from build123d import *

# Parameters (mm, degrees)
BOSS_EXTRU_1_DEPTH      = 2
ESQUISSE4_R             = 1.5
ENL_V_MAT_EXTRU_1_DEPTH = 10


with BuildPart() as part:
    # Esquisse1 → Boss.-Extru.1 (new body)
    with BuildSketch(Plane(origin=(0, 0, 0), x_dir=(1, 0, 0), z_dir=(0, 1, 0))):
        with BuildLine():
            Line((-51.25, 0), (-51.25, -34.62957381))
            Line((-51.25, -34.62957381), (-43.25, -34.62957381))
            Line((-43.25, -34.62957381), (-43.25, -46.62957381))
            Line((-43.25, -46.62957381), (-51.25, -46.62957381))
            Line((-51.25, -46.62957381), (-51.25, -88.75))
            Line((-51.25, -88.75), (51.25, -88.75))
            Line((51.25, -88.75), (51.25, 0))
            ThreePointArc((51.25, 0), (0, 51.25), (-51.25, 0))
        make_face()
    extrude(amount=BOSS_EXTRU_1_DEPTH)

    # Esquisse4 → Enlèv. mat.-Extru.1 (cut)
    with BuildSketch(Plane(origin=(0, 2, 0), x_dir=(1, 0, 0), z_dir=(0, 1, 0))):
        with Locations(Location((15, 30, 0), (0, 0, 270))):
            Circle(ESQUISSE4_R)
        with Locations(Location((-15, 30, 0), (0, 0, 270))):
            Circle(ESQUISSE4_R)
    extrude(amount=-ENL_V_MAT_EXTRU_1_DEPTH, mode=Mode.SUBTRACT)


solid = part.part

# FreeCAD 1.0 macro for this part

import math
import FreeCAD as App
import Part
import Sketcher
Q = App.Units.Quantity

doc = App.newDocument("Part")
body = doc.addObject("PartDesign::Body", "Body")

# Sketch on XZ plane
sketch1 = body.newObject("Sketcher::SketchObject", "Sketch")
sketch1.AttachmentSupport = (doc.getObject("XZ_Plane"), [""])
sketch1.MapMode = "FlatFace"
sketch1.addGeometry([
    Part.LineSegment(App.Vector(-51, 0, 0), App.Vector(-51, 35, 0)),  # 0
    Part.LineSegment(App.Vector(-51, 35, 0), App.Vector(-43, 35, 0)),  # 1
    Part.LineSegment(App.Vector(-43, 35, 0), App.Vector(-43, 47, 0)),  # 2
    Part.LineSegment(App.Vector(-43, 47, 0), App.Vector(-51, 47, 0)),  # 3
    Part.LineSegment(App.Vector(-51, 47, 0), App.Vector(-51, 89, 0)),  # 4
    Part.LineSegment(App.Vector(-51, 89, 0), App.Vector(51, 89, 0)),  # 5
    Part.LineSegment(App.Vector(51, 89, 0), App.Vector(51, 0, 0)),  # 6
    Part.ArcOfCircle(Part.Circle(App.Vector(0, 0, 0), App.Vector(0, 0, 1), 51), math.radians(180), math.radians(360)),  # 7
], False)
sketch1.addConstraint([
    Sketcher.Constraint("Coincident", 0, 2, 1, 1),
    Sketcher.Constraint("Coincident", 1, 2, 2, 1),
    Sketcher.Constraint("Coincident", 2, 2, 3, 1),
    Sketcher.Constraint("Coincident", 3, 2, 4, 1),
    Sketcher.Constraint("Coincident", 4, 2, 5, 1),
    Sketcher.Constraint("Coincident", 5, 2, 6, 1),
    Sketcher.Constraint("Tangent", 6, 2, 7, 2),
    Sketcher.Constraint("Tangent", 7, 1, 0, 1),
    Sketcher.Constraint("Vertical", 0),
    Sketcher.Constraint("Horizontal", 1),
    Sketcher.Constraint("Vertical", 2),
    Sketcher.Constraint("Horizontal", 3),
    Sketcher.Constraint("Vertical", 4),
    Sketcher.Constraint("Horizontal", 5),
    Sketcher.Constraint("Vertical", 6),
    Sketcher.Constraint("Coincident", 7, 3, -1, 1),
    Sketcher.Constraint("Vertical", 0, 2, 3, 2),
    Sketcher.Constraint("DistanceX", 1, 1, 1, 2, Q("8 mm")),
    Sketcher.Constraint("DistanceY", 2, 1, 2, 2, Q("12 mm")),
    Sketcher.Constraint("Radius", 7, Q("51.25 mm")),
    Sketcher.Constraint("DistanceY", 6, 2, 6, 1, Q("88.75 mm")),
    Sketcher.Constraint("DistanceY", 0, 1, 0, 2, Q("34.629574 mm")),
])
pad1 = body.newObject("PartDesign::Pad", "Pad")
pad1.Profile = sketch1
pad1.Length = 2
pad1.Reversed = True

# Sketch on XZ plane
sketch2 = body.newObject("Sketcher::SketchObject", "Sketch001")
sketch2.AttachmentSupport = (doc.getObject("XZ_Plane"), [""])
sketch2.MapMode = "FlatFace"
sketch2.AttachmentOffset = App.Placement(App.Vector(0, 0, -2), App.Rotation())
sketch2.addGeometry([
    Part.Circle(App.Vector(15, -30, 0), App.Vector(0, 0, 1), 1.5),
    Part.Circle(App.Vector(-15, -30, 0), App.Vector(0, 0, 1), 1.5),
], False)
sketch2.addConstraint([
    Sketcher.Constraint("Equal", 0, 1),
    Sketcher.Constraint("Symmetric", 0, 3, 1, 3, -2),
    Sketcher.Constraint("Diameter", 0, Q("3 mm")),
    Sketcher.Constraint("DistanceX", -1, 1, 0, 3, Q("15 mm")),
    Sketcher.Constraint("DistanceY", 0, 3, -1, 1, Q("30 mm")),
])
pocket1 = body.newObject("PartDesign::Pocket", "Pocket")
pocket1.Profile = sketch2
pocket1.Length = 10
pocket1.Reversed = True

doc.recompute()
